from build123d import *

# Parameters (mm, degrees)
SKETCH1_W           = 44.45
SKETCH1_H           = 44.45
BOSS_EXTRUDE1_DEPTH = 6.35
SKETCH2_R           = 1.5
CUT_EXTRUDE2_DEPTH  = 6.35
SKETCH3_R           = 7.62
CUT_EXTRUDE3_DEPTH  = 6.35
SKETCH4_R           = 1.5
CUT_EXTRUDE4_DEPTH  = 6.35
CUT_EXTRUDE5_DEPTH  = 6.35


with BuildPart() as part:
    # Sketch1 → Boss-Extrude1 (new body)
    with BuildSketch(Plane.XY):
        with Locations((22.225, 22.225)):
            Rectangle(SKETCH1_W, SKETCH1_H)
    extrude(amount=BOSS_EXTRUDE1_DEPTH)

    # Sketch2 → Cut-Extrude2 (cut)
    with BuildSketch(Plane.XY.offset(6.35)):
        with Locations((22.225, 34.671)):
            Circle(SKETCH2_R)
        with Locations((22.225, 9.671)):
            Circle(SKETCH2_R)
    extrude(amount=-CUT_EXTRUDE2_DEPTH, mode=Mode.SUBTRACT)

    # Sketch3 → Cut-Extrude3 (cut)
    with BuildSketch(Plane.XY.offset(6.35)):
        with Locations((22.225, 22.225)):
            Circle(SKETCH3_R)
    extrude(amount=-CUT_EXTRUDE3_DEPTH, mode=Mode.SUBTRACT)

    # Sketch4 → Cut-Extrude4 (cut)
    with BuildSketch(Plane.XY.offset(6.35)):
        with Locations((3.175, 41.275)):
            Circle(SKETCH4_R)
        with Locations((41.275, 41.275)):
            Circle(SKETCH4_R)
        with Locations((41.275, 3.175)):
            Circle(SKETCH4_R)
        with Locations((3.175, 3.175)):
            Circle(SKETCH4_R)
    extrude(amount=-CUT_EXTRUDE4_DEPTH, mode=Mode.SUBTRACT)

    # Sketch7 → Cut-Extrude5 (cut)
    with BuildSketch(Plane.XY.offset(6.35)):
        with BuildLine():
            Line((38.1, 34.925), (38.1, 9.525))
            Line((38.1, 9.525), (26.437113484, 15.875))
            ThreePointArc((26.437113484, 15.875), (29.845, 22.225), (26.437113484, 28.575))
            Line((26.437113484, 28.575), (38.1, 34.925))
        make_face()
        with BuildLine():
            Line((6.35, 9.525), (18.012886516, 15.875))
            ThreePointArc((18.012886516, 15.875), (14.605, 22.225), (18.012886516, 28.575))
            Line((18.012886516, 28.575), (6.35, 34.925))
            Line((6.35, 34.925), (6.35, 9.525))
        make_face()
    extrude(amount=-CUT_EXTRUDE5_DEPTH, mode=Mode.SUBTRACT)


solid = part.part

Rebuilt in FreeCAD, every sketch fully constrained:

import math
import FreeCAD as App
import Part
import Sketcher

V = App.Vector
Q = App.Units.Quantity


def add_polygon(sketch, points):
    """Adds a closed chain of lines whose ends are joined by coincident constraints."""
    first, n = sketch.GeometryCount, len(points)
    for a, b in zip(points, points[1:] + points[:1]):
        sketch.addGeometry(Part.LineSegment(App.Vector(*a, 0), App.Vector(*b, 0)), False)
    for i in range(n):
        sketch.addConstraint(Sketcher.Constraint("Coincident", first + i, 2, first + (i + 1) % n, 1))

doc = App.newDocument("Part")
body = doc.addObject("PartDesign::Body", "Body")

sketch1 = body.newObject("Sketcher::SketchObject", "Sketch")
sketch1.AttachmentSupport = (doc.getObject("XY_Plane"), [""])
sketch1.MapMode = "FlatFace"
add_polygon(sketch1, [(0, 44.45), (0, 0), (44.45, 0), (44.45, 44.45)])
sketch1.addConstraint([
    Sketcher.Constraint("Vertical", 0),
    Sketcher.Constraint("Horizontal", 1),
    Sketcher.Constraint("Vertical", 2),
    Sketcher.Constraint("Horizontal", 3),
    Sketcher.Constraint("Coincident", 0, 2, -1, 1),
    Sketcher.Constraint("Equal", 3, 0),
    Sketcher.Constraint("DistanceX", 1, 1, 1, 2, Q("1.75 in")),
])
pad1 = body.newObject("PartDesign::Pad", "Pad")
pad1.Profile = sketch1
pad1.Length = Q("0.25 in")

sketch2 = body.newObject("Sketcher::SketchObject", "Sketch001")
sketch2.AttachmentSupport = (doc.getObject("XY_Plane"), [""])
sketch2.MapMode = "FlatFace"
sketch2.AttachmentOffset = App.Placement(V(0, 0, 0.25 * 25.4), App.Rotation())
sketch2.addGeometry([
    Part.Circle(V(22.225, 34.671, 0), V(0, 0, 1), 1.5),
    Part.Circle(V(22.225, 9.671, 0), V(0, 0, 1), 1.5),
], False)
sketch2.addConstraint([
    Sketcher.Constraint("Equal", 0, 1),
    Sketcher.Constraint("Vertical", 0, 3, 1, 3),
    Sketcher.Constraint("Diameter", 0, 3.0),
    Sketcher.Constraint("DistanceX", -1, 1, 0, 3, Q("0.875 in")),
    Sketcher.Constraint("DistanceY", -1, 1, 0, 3, Q("1.365 in")),
    Sketcher.Constraint("DistanceY", -1, 1, 1, 3, 9.671),
])
pocket1 = body.newObject("PartDesign::Pocket", "Pocket")
pocket1.Profile = sketch2
pocket1.Length = Q("0.25 in")

sketch3 = body.newObject("Sketcher::SketchObject", "Sketch002")
sketch3.AttachmentSupport = (doc.getObject("XY_Plane"), [""])
sketch3.MapMode = "FlatFace"
sketch3.AttachmentOffset = App.Placement(V(0, 0, 0.25 * 25.4), App.Rotation())
sketch3.addGeometry(Part.Circle(V(22.225, 22.225, 0), V(0, 0, 1), 7.62), False)
sketch3.addConstraint([
    Sketcher.Constraint("Diameter", 0, Q("0.6 in")),
    Sketcher.Constraint("DistanceX", -1, 1, 0, 3, Q("0.875 in")),
    Sketcher.Constraint("DistanceY", -1, 1, 0, 3, Q("0.875 in")),
])
pocket2 = body.newObject("PartDesign::Pocket", "Pocket001")
pocket2.Profile = sketch3
pocket2.Length = Q("0.25 in")

sketch4 = body.newObject("Sketcher::SketchObject", "Sketch003")
sketch4.AttachmentSupport = (doc.getObject("XY_Plane"), [""])
sketch4.MapMode = "FlatFace"
sketch4.AttachmentOffset = App.Placement(V(0, 0, 0.25 * 25.4), App.Rotation())
sketch4.addGeometry([
    Part.Circle(V(3.175, 41.275, 0), V(0, 0, 1), 1.5),
    Part.Circle(V(41.275, 41.275, 0), V(0, 0, 1), 1.5),
    Part.Circle(V(41.275, 3.175, 0), V(0, 0, 1), 1.5),
    Part.Circle(V(3.175, 3.175, 0), V(0, 0, 1), 1.5),
], False)
sketch4.addConstraint([
    Sketcher.Constraint("Equal", 0, 1),
    Sketcher.Constraint("Equal", 1, 2),
    Sketcher.Constraint("Equal", 2, 3),
    Sketcher.Constraint("Horizontal", 0, 3, 1, 3),
    Sketcher.Constraint("Horizontal", 2, 3, 3, 3),
    Sketcher.Constraint("Vertical", 1, 3, 2, 3),
    Sketcher.Constraint("Vertical", 0, 3, 3, 3),
    Sketcher.Constraint("DistanceX", 0, 3, 1, 3, Q("1.5 in")),
    Sketcher.Constraint("DistanceY", 2, 3, 1, 3, Q("1.5 in")),
    Sketcher.Constraint("Diameter", 0, 3.0),
    Sketcher.Constraint("DistanceX", -1, 1, 0, 3, Q("0.125 in")),
    Sketcher.Constraint("DistanceY", -1, 1, 0, 3, Q("1.625 in")),
])
pocket3 = body.newObject("PartDesign::Pocket", "Pocket002")
pocket3.Profile = sketch4
pocket3.Length = Q("0.25 in")

sketch5 = body.newObject("Sketcher::SketchObject", "Sketch004")
sketch5.AttachmentSupport = (doc.getObject("XY_Plane"), [""])
sketch5.MapMode = "FlatFace"
sketch5.AttachmentOffset = App.Placement(V(0, 0, 0.25 * 25.4), App.Rotation())
sketch5.addGeometry([
    Part.LineSegment(V(38.1, 9.525, 0), V(38.1, 34.925, 0)),
    Part.LineSegment(V(38.1, 34.925, 0), V(26.437113, 28.575, 0)),
    Part.ArcOfCircle(Part.Circle(V(22.225, 22.225, 0), V(0, 0, 1), 7.62), math.radians(-56.44269), math.radians(56.44269)),
    Part.LineSegment(V(26.437113, 15.875, 0), V(38.1, 9.525, 0)),
    Part.LineSegment(V(6.35, 9.525, 0), V(18.012887, 15.875, 0)),
    Part.ArcOfCircle(Part.Circle(V(22.225, 22.225, 0), V(0, 0, 1), 7.62), math.radians(123.55731), math.radians(236.44269)),
    Part.LineSegment(V(18.012887, 28.575, 0), V(6.35, 34.925, 0)),
    Part.LineSegment(V(6.35, 34.925, 0), V(6.35, 9.525, 0)),
], False)
sketch5.addConstraint([
    Sketcher.Constraint("Coincident", 0, 2, 1, 1),
    Sketcher.Constraint("Coincident", 1, 2, 2, 2),
    Sketcher.Constraint("Coincident", 2, 1, 3, 1),
    Sketcher.Constraint("Coincident", 3, 2, 0, 1),
    Sketcher.Constraint("Coincident", 4, 2, 5, 2),
    Sketcher.Constraint("Coincident", 5, 1, 6, 1),
    Sketcher.Constraint("Coincident", 6, 2, 7, 1),
    Sketcher.Constraint("Coincident", 7, 2, 4, 1),
    Sketcher.Constraint("Vertical", 0),
    Sketcher.Constraint("Vertical", 7),
    Sketcher.Constraint("Coincident", 5, 3, 2, 3),
    Sketcher.Constraint("Equal", 2, 5),
    Sketcher.Constraint("Parallel", 1, 4),
    Sketcher.Constraint("Parallel", 3, 6),
    Sketcher.Constraint("Horizontal", 2, 1, 4, 2),
    Sketcher.Constraint("Horizontal", 1, 2, 5, 1),
    Sketcher.Constraint("Horizontal", 0, 2, 6, 2),
    Sketcher.Constraint("Horizontal", 3, 2, 7, 2),
    Sketcher.Constraint("Vertical", 1, 2, 2, 1),
    Sketcher.Constraint("Radius", 2, Q("0.3 in")),
    Sketcher.Constraint("DistanceY", 0, 1, 0, 2, Q("1 in")),
    Sketcher.Constraint("DistanceX", -1, 1, 0, 2, Q("1.5 in")),
    Sketcher.Constraint("DistanceY", 2, 1, 1, 2, Q("0.5 in")),
    Sketcher.Constraint("DistanceX", -1, 1, 6, 2, Q("0.25 in")),
    Sketcher.Constraint("DistanceY", -1, 1, 2, 3, Q("0.875 in")),
])
pocket4 = body.newObject("PartDesign::Pocket", "Pocket003")
pocket4.Profile = sketch5
pocket4.Length = Q("0.25 in")

doc.recompute()
